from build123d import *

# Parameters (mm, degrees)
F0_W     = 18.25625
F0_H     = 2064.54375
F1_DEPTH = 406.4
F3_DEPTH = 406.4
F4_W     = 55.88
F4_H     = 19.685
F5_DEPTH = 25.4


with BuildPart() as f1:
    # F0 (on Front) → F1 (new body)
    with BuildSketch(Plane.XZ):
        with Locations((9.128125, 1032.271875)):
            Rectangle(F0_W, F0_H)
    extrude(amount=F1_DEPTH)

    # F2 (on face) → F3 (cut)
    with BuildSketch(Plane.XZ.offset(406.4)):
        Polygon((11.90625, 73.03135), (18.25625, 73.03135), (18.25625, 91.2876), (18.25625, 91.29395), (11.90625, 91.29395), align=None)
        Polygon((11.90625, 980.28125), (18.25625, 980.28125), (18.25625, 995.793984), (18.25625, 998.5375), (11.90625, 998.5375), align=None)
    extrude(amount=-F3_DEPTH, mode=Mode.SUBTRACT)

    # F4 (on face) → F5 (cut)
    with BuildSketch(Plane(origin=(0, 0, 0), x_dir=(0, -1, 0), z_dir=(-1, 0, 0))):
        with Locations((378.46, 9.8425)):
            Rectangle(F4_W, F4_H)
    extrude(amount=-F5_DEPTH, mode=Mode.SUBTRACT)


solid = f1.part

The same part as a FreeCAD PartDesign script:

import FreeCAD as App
import Part
import Sketcher
Q = App.Units.Quantity


def add_polygon(sketch, points):
    """Adds a closed chain of lines whose ends are joined by coincident constraints."""
    first, n = sketch.GeometryCount, len(points)
    for a, b in zip(points, points[1:] + points[:1]):
        sketch.addGeometry(Part.LineSegment(App.Vector(*a, 0), App.Vector(*b, 0)), False)
    for i in range(n):
        sketch.addConstraint(Sketcher.Constraint("Coincident", first + i, 2, first + (i + 1) % n, 1))

doc = App.newDocument("Part")
body = doc.addObject("PartDesign::Body", "Body")

sketch1 = doc.addObject("Sketcher::SketchObject", "Sketch")
body.addObject(sketch1)
sketch1.AttachmentSupport = (doc.XZ_Plane, [""])
sketch1.MapMode = "FlatFace"
add_polygon(sketch1, [(0, 2065), (0, 0), (18, 0), (18, 2065)])
sketch1.addConstraint([
    Sketcher.Constraint("Vertical", 0),
    Sketcher.Constraint("Horizontal", 1),
    Sketcher.Constraint("Vertical", 2),
    Sketcher.Constraint("Horizontal", 3),
    Sketcher.Constraint("Coincident", 0, 2, -1, 1),
    Sketcher.Constraint("DistanceX", 1, 1, 1, 2, Q("0.71875 in")),
    Sketcher.Constraint("DistanceY", 0, 2, 0, 1, Q("81.28125 in")),
])
pad1 = doc.addObject("PartDesign::Pad", "Pad")
body.addObject(pad1)
pad1.Profile = sketch1
pad1.Length = Q("16 in")

sketch2 = doc.addObject("Sketcher::SketchObject", "Sketch001")
body.addObject(sketch2)
sketch2.AttachmentSupport = (doc.XZ_Plane, [""])
sketch2.MapMode = "FlatFace"
sketch2.AttachmentOffset = App.Placement(App.Vector(0, 0, 16 * 25.4), App.Rotation())
add_polygon(sketch2, [(12, 73), (18, 73), (18, 91), (12, 91)])
add_polygon(sketch2, [(12, 980), (18, 980), (18, 999), (12, 999)])
sketch2.addConstraint([
    Sketcher.Constraint("Horizontal", 0),
    Sketcher.Constraint("Vertical", 1),
    Sketcher.Constraint("Horizontal", 2),
    Sketcher.Constraint("Vertical", 3),
    Sketcher.Constraint("Horizontal", 4),
    Sketcher.Constraint("Vertical", 5),
    Sketcher.Constraint("Horizontal", 6),
    Sketcher.Constraint("Vertical", 7),
    Sketcher.Constraint("Vertical", 1, 2, 4, 2),
    Sketcher.Constraint("Vertical", 3, 2, 6, 2),
    Sketcher.Constraint("DistanceX", 0, 1, 0, 2, Q("0.25 in")),
    Sketcher.Constraint("DistanceY", 1, 1, 1, 2, Q("0.719 in")),
    Sketcher.Constraint("DistanceY", 5, 1, 5, 2, Q("0.71875 in")),
    Sketcher.Constraint("DistanceX", -1, 1, 0, 2, Q("0.71875 in")),
    Sketcher.Constraint("DistanceY", -1, 1, 4, 2, Q("38.59375 in")),
    Sketcher.Constraint("DistanceY", 1, 2, 4, 2, Q("34.9995 in")),
])
pocket1 = doc.addObject("PartDesign::Pocket", "Pocket")
body.addObject(pocket1)
pocket1.Profile = sketch2
pocket1.Length = Q("16 in")

sketch3 = doc.addObject("Sketcher::SketchObject", "Sketch002")
body.addObject(sketch3)
sketch3.AttachmentSupport = (doc.YZ_Plane, [""])
sketch3.MapMode = "FlatFace"
add_polygon(sketch3, [(-351, 20), (-351, 0), (-406, 0), (-406, 20)])
sketch3.addConstraint([
    Sketcher.Constraint("Vertical", 0),
    Sketcher.Constraint("Horizontal", 1),
    Sketcher.Constraint("Vertical", 2),
    Sketcher.Constraint("Horizontal", 3),
    Sketcher.Constraint("PointOnObject", 0, 2, -1),
    Sketcher.Constraint("DistanceX", 1, 2, 1, 1, Q("2.2 in")),
    Sketcher.Constraint("DistanceX", 1, 2, -1, 1, Q("16 in")),
    Sketcher.Constraint("DistanceY", 0, 2, 0, 1, Q("0.775 in")),
])
pocket2 = doc.addObject("PartDesign::Pocket", "Pocket001")
body.addObject(pocket2)
pocket2.Profile = sketch3
pocket2.Length = Q("1 in")
pocket2.Reversed = True

doc.recompute()
